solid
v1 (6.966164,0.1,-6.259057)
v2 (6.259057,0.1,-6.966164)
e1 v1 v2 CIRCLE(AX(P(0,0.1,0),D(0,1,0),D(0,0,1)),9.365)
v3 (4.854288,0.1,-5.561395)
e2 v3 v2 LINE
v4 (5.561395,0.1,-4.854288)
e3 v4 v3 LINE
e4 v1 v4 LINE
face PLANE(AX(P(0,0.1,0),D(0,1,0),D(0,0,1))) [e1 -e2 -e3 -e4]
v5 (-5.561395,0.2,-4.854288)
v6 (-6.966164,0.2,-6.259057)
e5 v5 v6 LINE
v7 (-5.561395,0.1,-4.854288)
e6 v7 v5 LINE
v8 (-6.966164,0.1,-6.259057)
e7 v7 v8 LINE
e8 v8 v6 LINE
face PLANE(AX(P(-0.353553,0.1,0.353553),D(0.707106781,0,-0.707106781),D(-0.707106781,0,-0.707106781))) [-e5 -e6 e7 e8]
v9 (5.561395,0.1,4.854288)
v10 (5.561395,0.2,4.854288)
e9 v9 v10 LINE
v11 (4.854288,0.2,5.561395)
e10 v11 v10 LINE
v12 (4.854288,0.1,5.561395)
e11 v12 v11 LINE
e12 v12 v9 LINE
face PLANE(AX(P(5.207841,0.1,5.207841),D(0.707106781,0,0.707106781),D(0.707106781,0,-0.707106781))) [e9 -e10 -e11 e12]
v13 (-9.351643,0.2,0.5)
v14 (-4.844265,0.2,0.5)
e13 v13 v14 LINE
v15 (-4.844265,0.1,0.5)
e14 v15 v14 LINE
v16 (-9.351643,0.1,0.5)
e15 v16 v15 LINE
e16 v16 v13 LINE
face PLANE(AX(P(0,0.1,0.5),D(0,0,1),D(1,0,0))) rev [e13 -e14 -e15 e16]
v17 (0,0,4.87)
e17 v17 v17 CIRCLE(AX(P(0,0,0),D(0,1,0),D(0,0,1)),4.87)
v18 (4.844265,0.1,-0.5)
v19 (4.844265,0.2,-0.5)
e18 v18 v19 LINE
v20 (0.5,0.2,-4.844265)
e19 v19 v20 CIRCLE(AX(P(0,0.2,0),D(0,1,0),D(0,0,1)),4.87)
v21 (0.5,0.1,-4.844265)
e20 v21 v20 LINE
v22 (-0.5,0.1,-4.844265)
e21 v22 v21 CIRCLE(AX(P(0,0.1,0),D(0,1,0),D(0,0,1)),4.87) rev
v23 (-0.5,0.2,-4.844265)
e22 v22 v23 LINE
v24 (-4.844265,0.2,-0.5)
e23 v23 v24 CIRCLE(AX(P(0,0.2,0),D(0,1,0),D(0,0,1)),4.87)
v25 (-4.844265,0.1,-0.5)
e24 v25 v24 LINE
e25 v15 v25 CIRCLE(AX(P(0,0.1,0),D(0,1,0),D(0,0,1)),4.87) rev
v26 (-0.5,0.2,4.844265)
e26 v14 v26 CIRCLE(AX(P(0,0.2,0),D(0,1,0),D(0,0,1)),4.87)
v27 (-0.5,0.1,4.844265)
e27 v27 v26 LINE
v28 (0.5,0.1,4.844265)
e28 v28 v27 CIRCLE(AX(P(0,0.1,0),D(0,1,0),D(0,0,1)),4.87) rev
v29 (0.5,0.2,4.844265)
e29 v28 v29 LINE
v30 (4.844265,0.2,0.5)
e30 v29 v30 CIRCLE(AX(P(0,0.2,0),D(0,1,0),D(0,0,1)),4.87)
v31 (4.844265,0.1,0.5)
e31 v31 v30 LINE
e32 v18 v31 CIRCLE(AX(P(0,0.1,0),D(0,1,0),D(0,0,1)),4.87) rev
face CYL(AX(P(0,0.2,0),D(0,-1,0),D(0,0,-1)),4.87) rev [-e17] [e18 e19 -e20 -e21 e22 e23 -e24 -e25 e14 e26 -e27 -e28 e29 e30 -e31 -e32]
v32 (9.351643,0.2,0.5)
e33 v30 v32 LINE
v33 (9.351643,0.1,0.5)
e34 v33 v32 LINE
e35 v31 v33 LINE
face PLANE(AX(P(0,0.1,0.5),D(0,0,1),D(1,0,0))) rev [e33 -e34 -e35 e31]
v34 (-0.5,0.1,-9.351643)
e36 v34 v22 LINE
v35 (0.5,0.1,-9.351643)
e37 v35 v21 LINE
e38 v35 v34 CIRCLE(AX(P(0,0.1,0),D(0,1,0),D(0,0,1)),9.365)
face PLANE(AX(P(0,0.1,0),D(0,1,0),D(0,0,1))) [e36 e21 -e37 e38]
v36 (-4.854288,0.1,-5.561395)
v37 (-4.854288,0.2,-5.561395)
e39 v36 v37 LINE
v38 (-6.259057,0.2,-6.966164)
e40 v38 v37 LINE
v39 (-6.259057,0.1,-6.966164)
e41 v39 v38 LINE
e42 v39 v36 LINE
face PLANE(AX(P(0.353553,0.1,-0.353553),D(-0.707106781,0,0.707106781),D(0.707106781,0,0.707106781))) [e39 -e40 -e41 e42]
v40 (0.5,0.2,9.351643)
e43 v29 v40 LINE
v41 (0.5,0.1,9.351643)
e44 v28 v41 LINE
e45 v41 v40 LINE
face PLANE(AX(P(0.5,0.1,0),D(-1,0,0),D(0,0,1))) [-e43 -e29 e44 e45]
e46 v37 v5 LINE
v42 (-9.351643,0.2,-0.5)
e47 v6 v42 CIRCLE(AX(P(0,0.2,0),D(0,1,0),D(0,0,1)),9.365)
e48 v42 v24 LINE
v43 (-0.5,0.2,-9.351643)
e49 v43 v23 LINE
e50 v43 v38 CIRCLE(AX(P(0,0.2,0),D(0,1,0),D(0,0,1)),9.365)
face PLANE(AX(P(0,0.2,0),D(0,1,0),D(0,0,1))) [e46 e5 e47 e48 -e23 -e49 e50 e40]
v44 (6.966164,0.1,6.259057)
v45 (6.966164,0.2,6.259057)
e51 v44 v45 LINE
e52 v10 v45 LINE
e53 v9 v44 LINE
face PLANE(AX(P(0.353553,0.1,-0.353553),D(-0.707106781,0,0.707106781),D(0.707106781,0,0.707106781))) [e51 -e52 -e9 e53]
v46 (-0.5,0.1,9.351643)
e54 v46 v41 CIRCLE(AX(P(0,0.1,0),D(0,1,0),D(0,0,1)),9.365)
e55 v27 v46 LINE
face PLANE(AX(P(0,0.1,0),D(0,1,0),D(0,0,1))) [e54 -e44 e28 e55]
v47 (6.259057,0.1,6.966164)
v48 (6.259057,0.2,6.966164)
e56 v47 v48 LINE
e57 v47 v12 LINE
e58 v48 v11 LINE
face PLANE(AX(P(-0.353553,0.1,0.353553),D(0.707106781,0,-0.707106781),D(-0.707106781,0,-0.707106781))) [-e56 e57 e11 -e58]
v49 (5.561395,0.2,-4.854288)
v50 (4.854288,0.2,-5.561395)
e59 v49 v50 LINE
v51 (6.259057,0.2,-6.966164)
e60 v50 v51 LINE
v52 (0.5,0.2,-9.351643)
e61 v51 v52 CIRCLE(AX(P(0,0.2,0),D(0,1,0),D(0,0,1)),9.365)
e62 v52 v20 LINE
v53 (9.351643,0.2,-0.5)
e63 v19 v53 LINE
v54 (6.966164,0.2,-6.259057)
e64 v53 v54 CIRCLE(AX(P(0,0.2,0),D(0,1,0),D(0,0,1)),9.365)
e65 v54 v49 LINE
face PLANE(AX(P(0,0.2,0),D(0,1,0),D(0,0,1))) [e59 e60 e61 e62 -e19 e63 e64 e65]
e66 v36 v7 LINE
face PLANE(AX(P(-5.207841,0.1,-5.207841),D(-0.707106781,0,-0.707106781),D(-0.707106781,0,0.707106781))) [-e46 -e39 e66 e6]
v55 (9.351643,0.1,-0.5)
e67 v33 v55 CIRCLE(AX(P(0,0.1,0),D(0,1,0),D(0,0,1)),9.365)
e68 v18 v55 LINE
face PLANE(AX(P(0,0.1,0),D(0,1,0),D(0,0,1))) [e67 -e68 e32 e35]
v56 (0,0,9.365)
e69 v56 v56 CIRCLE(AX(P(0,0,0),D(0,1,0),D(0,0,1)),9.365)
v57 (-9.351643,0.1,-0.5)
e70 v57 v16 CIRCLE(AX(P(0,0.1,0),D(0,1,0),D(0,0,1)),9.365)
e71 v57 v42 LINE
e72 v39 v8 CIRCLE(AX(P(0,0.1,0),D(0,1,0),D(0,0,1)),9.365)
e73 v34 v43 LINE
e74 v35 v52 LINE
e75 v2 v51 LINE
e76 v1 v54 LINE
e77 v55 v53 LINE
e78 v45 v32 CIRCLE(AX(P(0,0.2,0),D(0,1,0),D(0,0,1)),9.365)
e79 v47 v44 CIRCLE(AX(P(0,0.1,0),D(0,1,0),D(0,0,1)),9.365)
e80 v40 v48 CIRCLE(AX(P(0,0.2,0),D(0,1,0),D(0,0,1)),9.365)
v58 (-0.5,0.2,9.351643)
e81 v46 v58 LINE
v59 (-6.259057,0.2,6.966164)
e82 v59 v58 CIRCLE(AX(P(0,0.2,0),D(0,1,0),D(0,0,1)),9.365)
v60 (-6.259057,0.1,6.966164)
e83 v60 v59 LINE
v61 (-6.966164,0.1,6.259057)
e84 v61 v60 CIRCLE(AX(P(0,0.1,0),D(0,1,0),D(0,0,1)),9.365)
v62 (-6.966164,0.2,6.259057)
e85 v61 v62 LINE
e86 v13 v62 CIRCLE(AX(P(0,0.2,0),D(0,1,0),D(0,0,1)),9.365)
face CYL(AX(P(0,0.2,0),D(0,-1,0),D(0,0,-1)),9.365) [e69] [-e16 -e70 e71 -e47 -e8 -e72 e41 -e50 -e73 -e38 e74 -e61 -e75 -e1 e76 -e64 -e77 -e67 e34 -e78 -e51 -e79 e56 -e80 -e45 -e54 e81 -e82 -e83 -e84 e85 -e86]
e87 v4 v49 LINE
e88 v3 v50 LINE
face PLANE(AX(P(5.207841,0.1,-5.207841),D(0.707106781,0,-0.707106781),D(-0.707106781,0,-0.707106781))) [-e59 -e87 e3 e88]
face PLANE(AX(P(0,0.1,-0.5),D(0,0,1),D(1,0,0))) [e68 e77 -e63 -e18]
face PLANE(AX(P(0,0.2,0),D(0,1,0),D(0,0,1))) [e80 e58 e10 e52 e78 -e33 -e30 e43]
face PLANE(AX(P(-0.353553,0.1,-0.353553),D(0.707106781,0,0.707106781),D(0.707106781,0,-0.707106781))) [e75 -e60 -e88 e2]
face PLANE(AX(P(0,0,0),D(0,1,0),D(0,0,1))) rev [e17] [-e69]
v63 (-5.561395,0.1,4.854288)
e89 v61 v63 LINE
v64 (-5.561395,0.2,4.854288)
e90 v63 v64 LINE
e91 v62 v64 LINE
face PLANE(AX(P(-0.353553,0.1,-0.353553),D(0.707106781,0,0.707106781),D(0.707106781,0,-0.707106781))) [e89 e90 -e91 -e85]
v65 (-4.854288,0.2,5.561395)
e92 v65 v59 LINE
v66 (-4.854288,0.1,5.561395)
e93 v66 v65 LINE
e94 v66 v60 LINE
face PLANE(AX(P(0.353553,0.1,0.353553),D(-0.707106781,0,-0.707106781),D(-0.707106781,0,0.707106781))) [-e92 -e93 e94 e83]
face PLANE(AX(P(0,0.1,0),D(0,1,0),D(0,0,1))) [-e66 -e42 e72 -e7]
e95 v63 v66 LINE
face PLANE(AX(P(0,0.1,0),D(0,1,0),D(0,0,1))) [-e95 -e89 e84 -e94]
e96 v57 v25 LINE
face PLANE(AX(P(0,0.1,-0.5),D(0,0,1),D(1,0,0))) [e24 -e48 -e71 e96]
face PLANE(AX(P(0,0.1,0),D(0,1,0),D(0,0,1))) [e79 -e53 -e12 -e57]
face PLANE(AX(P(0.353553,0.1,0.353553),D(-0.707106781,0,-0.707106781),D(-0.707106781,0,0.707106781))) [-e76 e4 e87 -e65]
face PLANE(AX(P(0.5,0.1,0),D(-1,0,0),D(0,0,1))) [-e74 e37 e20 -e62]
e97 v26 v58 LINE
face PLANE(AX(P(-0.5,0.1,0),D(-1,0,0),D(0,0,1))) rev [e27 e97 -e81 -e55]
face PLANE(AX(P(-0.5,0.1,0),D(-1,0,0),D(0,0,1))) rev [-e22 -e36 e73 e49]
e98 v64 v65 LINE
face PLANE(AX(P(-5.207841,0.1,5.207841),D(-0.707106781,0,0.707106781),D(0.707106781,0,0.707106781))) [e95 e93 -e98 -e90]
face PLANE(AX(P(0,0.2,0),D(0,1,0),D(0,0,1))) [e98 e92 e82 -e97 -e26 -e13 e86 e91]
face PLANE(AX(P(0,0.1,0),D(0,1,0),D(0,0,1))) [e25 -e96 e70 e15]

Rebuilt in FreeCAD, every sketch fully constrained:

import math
import FreeCAD as App
import Part
import Sketcher
Q = App.Units.Quantity

doc = App.newDocument("Part")
params = doc.addObject("Spreadsheet::Sheet", "Params")
for row, (alias, value) in enumerate([
    ("sketch1_diameter", "18.73 mm"),
    ("sketch1_diameter2", "9.74 mm"),
    ("pad1_length", "0.2 mm"),
    ("sketch2_radius", "4.87 mm"),
    ("sketch2_length", "1 mm"),
    ("sketch2_length2", "2 mm"),
    ("pocket1_length", "0.1 mm"),
], start=1):
    params.set(f"A{row}", alias)
    params.set(f"B{row}", "=" + value)
    params.setAlias(f"B{row}", alias)

body = doc.addObject("PartDesign::Body", "Body")

# Sketch on XZ plane
sketch1 = body.newObject("Sketcher::SketchObject", "Sketch")
sketch1.AttachmentSupport = (doc.getObject("XZ_Plane"), [""])
sketch1.MapMode = "FlatFace"
sketch1.addGeometry([
    Part.Circle(App.Vector(0, 0, 0), App.Vector(0, 0, 1), 9.365),
    Part.Circle(App.Vector(0, 0, 0), App.Vector(0, 0, 1), 4.87),
], False)
sketch1.addConstraint([
    Sketcher.Constraint("Coincident", 0, 3, -1, 1),
    Sketcher.Constraint("Coincident", 1, 3, -1, 1),
    Sketcher.Constraint("Diameter", 0, Q("18.73 mm")),
    Sketcher.Constraint("Diameter", 1, Q("9.74 mm")),
])
sketch1.setExpression("Constraints[2]", "Params.sketch1_diameter")
sketch1.setExpression("Constraints[3]", "Params.sketch1_diameter2")
pad1 = body.newObject("PartDesign::Pad", "Pad")
pad1.Profile = sketch1
pad1.setExpression("Length", "Params.pad1_length")
pad1.Reversed = True

# Sketch on XZ plane
sketch2 = body.newObject("Sketcher::SketchObject", "Sketch001")
sketch2.AttachmentSupport = (doc.getObject("XZ_Plane"), [""])
sketch2.MapMode = "FlatFace"
sketch2.AttachmentOffset = App.Placement(App.Vector(0, 0, -0.2), App.Rotation())
sketch2.addGeometry([
    Part.LineSegment(App.Vector(-0.5, -9.351643, 0), App.Vector(-0.5, -4.844265, 0)),  # 0
    Part.ArcOfCircle(Part.Circle(App.Vector(0, 0, 0), App.Vector(0, 0, 1), 4.87), math.radians(-95.892908), math.radians(-84.107092)),  # 1
    Part.LineSegment(App.Vector(0.5, -4.844265, 0), App.Vector(0.5, -9.351643, 0)),  # 2
    Part.ArcOfCircle(Part.Circle(App.Vector(0, 0.000001, 0), App.Vector(0, 0, 1), 9.365001), math.radians(-90), math.radians(-86.939507)),  # 3
    Part.ArcOfCircle(Part.Circle(App.Vector(0, 0.000001, 0), App.Vector(0, 0, 1), 9.365001), math.radians(-93.060493), math.radians(-90)),  # 4
    Part.ArcOfCircle(Part.Circle(App.Vector(0, 0, 0), App.Vector(0, 0, 1), 4.87), math.radians(84.107092), math.radians(95.892908)),  # 5
    Part.LineSegment(App.Vector(-0.5, 4.844265, 0), App.Vector(-0.5, 9.351643, 0)),  # 6
    Part.ArcOfCircle(Part.Circle(App.Vector(0, -0.000001, 0), App.Vector(0, 0, 1), 9.365001), math.radians(90), math.radians(93.060493)),  # 7
    Part.ArcOfCircle(Part.Circle(App.Vector(0, -0.000001, 0), App.Vector(0, 0, 1), 9.365001), math.radians(86.939507), math.radians(90)),  # 8
    Part.LineSegment(App.Vector(0.5, 9.351643, 0), App.Vector(0.5, 4.844265, 0)),  # 9
    Part.LineSegment(App.Vector(-4.844265, -0.5, 0), App.Vector(-9.351643, -0.5, 0)),  # 10
    Part.ArcOfCircle(Part.Circle(App.Vector(0.000001, 0, 0), App.Vector(0, 0, 1), 9.365001), math.radians(-180), math.radians(-176.939507)),  # 11
    Part.ArcOfCircle(Part.Circle(App.Vector(0.000001, 0, 0), App.Vector(0, 0, 1), 9.365001), math.radians(176.939507), math.radians(180)),  # 12
    Part.LineSegment(App.Vector(-9.351643, 0.5, 0), App.Vector(-4.844265, 0.5, 0)),  # 13
    Part.ArcOfCircle(Part.Circle(App.Vector(0, 0, 0), App.Vector(0, 0, 1), 4.87), math.radians(174.107092), math.radians(185.892908)),  # 14
    Part.LineSegment(App.Vector(9.351643, -0.5, 0), App.Vector(4.844265, -0.5, 0)),  # 15
    Part.ArcOfCircle(Part.Circle(App.Vector(0, 0, 0), App.Vector(0, 0, 1), 4.87), math.radians(-5.892908), math.radians(0)),  # 16
    Part.ArcOfCircle(Part.Circle(App.Vector(0, 0, 0), App.Vector(0, 0, 1), 4.87), math.radians(0), math.radians(5.892908)),  # 17
    Part.LineSegment(App.Vector(4.844265, 0.5, 0), App.Vector(9.351643, 0.5, 0)),  # 18
    Part.ArcOfCircle(Part.Circle(App.Vector(-0.000001, 0, 0), App.Vector(0, 0, 1), 9.365001), math.radians(0), math.radians(3.060493)),  # 19
    Part.ArcOfCircle(Part.Circle(App.Vector(-0.000001, 0, 0), App.Vector(0, 0, 1), 9.365001), math.radians(-3.060493), math.radians(0)),  # 20
    Part.ArcOfCircle(Part.Circle(App.Vector(0, 0, 0), App.Vector(0, 0, 1), 9.365), math.radians(-48.060493), math.radians(-45)),  # 21
    Part.LineSegment(App.Vector(6.259057, -6.966164, 0), App.Vector(4.854288, -5.561395, 0)),  # 22
    Part.LineSegment(App.Vector(4.854288, -5.561395, 0), App.Vector(5.561395, -4.854288, 0)),  # 23
    Part.LineSegment(App.Vector(5.561395, -4.854288, 0), App.Vector(6.966164, -6.259057, 0)),  # 24
    Part.ArcOfCircle(Part.Circle(App.Vector(0, 0, 0), App.Vector(0, 0, 1), 9.365), math.radians(-45), math.radians(-41.939507)),  # 25
    Part.LineSegment(App.Vector(4.854288, 5.561395, 0), App.Vector(6.259057, 6.966164, 0)),  # 26
    Part.ArcOfCircle(Part.Circle(App.Vector(0, 0, 0), App.Vector(0, 0, 1), 9.365), math.radians(45), math.radians(48.060493)),  # 27
    Part.ArcOfCircle(Part.Circle(App.Vector(0, 0, 0), App.Vector(0, 0, 1), 9.365), math.radians(41.939507), math.radians(45)),  # 28
    Part.LineSegment(App.Vector(6.966164, 6.259057, 0), App.Vector(5.561395, 4.854288, 0)),  # 29
    Part.LineSegment(App.Vector(5.561395, 4.854288, 0), App.Vector(4.854288, 5.561395, 0)),  # 30
    Part.LineSegment(App.Vector(-5.561395, 4.854288, 0), App.Vector(-6.966164, 6.259057, 0)),  # 31
    Part.ArcOfCircle(Part.Circle(App.Vector(0, 0, 0), App.Vector(0, 0, 1), 9.365), math.radians(135), math.radians(138.060493)),  # 32
    Part.ArcOfCircle(Part.Circle(App.Vector(0, 0, 0), App.Vector(0, 0, 1), 9.365), math.radians(131.939507), math.radians(135)),  # 33
    Part.LineSegment(App.Vector(-6.259057, 6.966164, 0), App.Vector(-4.854288, 5.561395, 0)),  # 34
    Part.LineSegment(App.Vector(-4.854288, 5.561395, 0), App.Vector(-5.561395, 4.854288, 0)),  # 35
    Part.LineSegment(App.Vector(-5.561395, -4.854288, 0), App.Vector(-4.854288, -5.561395, 0)),  # 36
    Part.LineSegment(App.Vector(-4.854288, -5.561395, 0), App.Vector(-6.268502, -6.975608, 0)),  # 37
    Part.LineSegment(App.Vector(-6.268502, -6.975608, 0), App.Vector(-6.975608, -6.268502, 0)),  # 38
    Part.LineSegment(App.Vector(-6.975608, -6.268502, 0), App.Vector(-5.561395, -4.854288, 0)),  # 39
], False)
sketch2.addConstraint([
    Sketcher.Constraint("Coincident", 0, 2, 1, 1),
    Sketcher.Constraint("Coincident", 1, 2, 2, 1),
    Sketcher.Constraint("Coincident", 2, 2, 3, 2),
    Sketcher.Constraint("Tangent", 3, 1, 4, 2),
    Sketcher.Constraint("Coincident", 4, 1, 0, 1),
    Sketcher.Constraint("Coincident", 5, 2, 6, 1),
    Sketcher.Constraint("Coincident", 6, 2, 7, 2),
    Sketcher.Constraint("Tangent", 7, 1, 8, 2),
    Sketcher.Constraint("Coincident", 8, 1, 9, 1),
    Sketcher.Constraint("Coincident", 9, 2, 5, 1),
    Sketcher.Constraint("Coincident", 10, 2, 11, 2),
    Sketcher.Constraint("Tangent", 11, 1, 12, 2),
    Sketcher.Constraint("Coincident", 12, 1, 13, 1),
    Sketcher.Constraint("Coincident", 13, 2, 14, 1),
    Sketcher.Constraint("Coincident", 14, 2, 10, 1),
    Sketcher.Constraint("Coincident", 15, 2, 16, 1),
    Sketcher.Constraint("Tangent", 16, 2, 17, 1),
    Sketcher.Constraint("Coincident", 17, 2, 18, 1),
    Sketcher.Constraint("Coincident", 18, 2, 19, 2),
    Sketcher.Constraint("Tangent", 19, 1, 20, 2),
    Sketcher.Constraint("Coincident", 20, 1, 15, 1),
    Sketcher.Constraint("Coincident", 21, 1, 22, 1),
    Sketcher.Constraint("Coincident", 22, 2, 23, 1),
    Sketcher.Constraint("Coincident", 23, 2, 24, 1),
    Sketcher.Constraint("Coincident", 24, 2, 25, 2),
    Sketcher.Constraint("Tangent", 25, 1, 21, 2),
    Sketcher.Constraint("Coincident", 26, 2, 27, 2),
    Sketcher.Constraint("Tangent", 27, 1, 28, 2),
    Sketcher.Constraint("Coincident", 28, 1, 29, 1),
    Sketcher.Constraint("Coincident", 29, 2, 30, 1),
    Sketcher.Constraint("Coincident", 30, 2, 26, 1),
    Sketcher.Constraint("Coincident", 31, 2, 32, 2),
    Sketcher.Constraint("Tangent", 32, 1, 33, 2),
    Sketcher.Constraint("Coincident", 33, 1, 34, 1),
    Sketcher.Constraint("Coincident", 34, 2, 35, 1),
    Sketcher.Constraint("Coincident", 35, 2, 31, 1),
    Sketcher.Constraint("Coincident", 36, 2, 37, 1),
    Sketcher.Constraint("Coincident", 37, 2, 38, 1),
    Sketcher.Constraint("Coincident", 38, 2, 39, 1),
    Sketcher.Constraint("Coincident", 39, 2, 36, 1),
    Sketcher.Constraint("Vertical", 0),
    Sketcher.Constraint("Vertical", 2),
    Sketcher.Constraint("Vertical", 6),
    Sketcher.Constraint("Vertical", 9),
    Sketcher.Constraint("Horizontal", 10),
    Sketcher.Constraint("Horizontal", 13),
    Sketcher.Constraint("Horizontal", 15),
    Sketcher.Constraint("Horizontal", 18),
    Sketcher.Constraint("Coincident", 1, 3, -1, 1),
    Sketcher.Constraint("Coincident", 3, 3, -1, 1),
    Sketcher.Constraint("Coincident", 5, 3, -1, 1),
    Sketcher.Constraint("Coincident", 7, 3, -1, 1),
    Sketcher.Constraint("Coincident", 11, 3, -1, 1),
    Sketcher.Constraint("Coincident", 14, 3, -1, 1),
    Sketcher.Constraint("Coincident", 16, 3, -1, 1),
    Sketcher.Constraint("Coincident", 19, 3, -1, 1),
    Sketcher.Constraint("Coincident", 21, 3, -1, 1),
    Sketcher.Constraint("Coincident", 27, 3, -1, 1),
    Sketcher.Constraint("Coincident", 32, 3, -1, 1),
    Sketcher.Constraint("Equal", 3, 4),
    Sketcher.Constraint("Equal", 1, 5),
    Sketcher.Constraint("Equal", 4, 7),
    Sketcher.Constraint("Equal", 7, 8),
    Sketcher.Constraint("Equal", 8, 11),
    Sketcher.Constraint("Equal", 11, 12),
    Sketcher.Constraint("Equal", 5, 14),
    Sketcher.Constraint("Equal", 14, 16),
    Sketcher.Constraint("Equal", 16, 17),
    Sketcher.Constraint("Equal", 12, 19),
    Sketcher.Constraint("Equal", 19, 20),
    Sketcher.Constraint("Equal", 20, 21),
    Sketcher.Constraint("Equal", 21, 25),
    Sketcher.Constraint("Equal", 25, 27),
    Sketcher.Constraint("Equal", 27, 28),
    Sketcher.Constraint("Equal", 28, 32),
    Sketcher.Constraint("Equal", 32, 33),
    Sketcher.Constraint("Symmetric", 22, 2, 34, 2, -1, 1),
    Sketcher.Constraint("Symmetric", 23, 2, 35, 2, -1, 1),
    Sketcher.Constraint("Symmetric", 30, 2, 36, 2, -1, 1),
    Sketcher.Constraint("Symmetric", 29, 2, 39, 2, -1, 1),
    Sketcher.Constraint("Symmetric", 30, 2, 34, 2, -2),
    Sketcher.Constraint("Symmetric", 29, 2, 35, 2, -2),
    Sketcher.Constraint("PointOnObject", 3, 1, -2),
    Sketcher.Constraint("PointOnObject", 7, 1, -2),
    Sketcher.Constraint("PointOnObject", 11, 1, -1),
    Sketcher.Constraint("PointOnObject", 16, 2, -1),
    Sketcher.Constraint("PointOnObject", 19, 1, -1),
    Sketcher.Constraint("Perpendicular", 22, 23),
    Sketcher.Constraint("Perpendicular", 23, 24),
    Sketcher.Constraint("Perpendicular", 24, 26),
    Sketcher.Constraint("Parallel", 26, 29),
    Sketcher.Constraint("Perpendicular", 29, 30),
    Sketcher.Constraint("Parallel", 30, 31),
    Sketcher.Constraint("Parallel", 31, 34),
    Sketcher.Constraint("Perpendicular", 36, 37),
    Sketcher.Constraint("Perpendicular", 37, 38),
    Sketcher.Constraint("Perpendicular", 38, 39),
    Sketcher.Constraint("Horizontal", 0, 2, 1, 2),
    Sketcher.Constraint("Horizontal", 6, 2, 8, 1),
    Sketcher.Constraint("Horizontal", 14, 2, 15, 2),
    Sketcher.Constraint("Horizontal", 13, 2, 17, 2),
    Sketcher.Constraint("Horizontal", 27, 1, 32, 1),
    Sketcher.Constraint("Vertical", 4, 1, 5, 2),
    Sketcher.Constraint("Vertical", 10, 2, 12, 1),
    Sketcher.Constraint("Vertical", 25, 1, 27, 1),
    Sketcher.Constraint("Equal", 18, 0),
    Sketcher.Constraint("Equal", 22, 24),
    Sketcher.Constraint("Radius", 1, Q("4.87 mm")),
    Sketcher.Constraint("Distance", 23, Q("1 mm")),
    Sketcher.Constraint("Distance", 37, Q("2 mm")),
    Sketcher.Constraint("Radius", 3, Q("9.365001 mm")),
    Sketcher.Constraint("DistanceX", 0, 2, 1, 2, Q("1 mm")),
    Sketcher.Constraint("DistanceX", 21, 1, 25, 1, Q("0.362998 mm")),
    Sketcher.Constraint("DistanceX", 37, 2, -1, 1, Q("6.268502 mm")),
])
sketch2.setExpression("Constraints[107]", "Params.sketch2_radius")
sketch2.setExpression("Constraints[108]", "Params.sketch2_length")
sketch2.setExpression("Constraints[109]", "Params.sketch2_length2")
pocket1 = body.newObject("PartDesign::Pocket", "Pocket")
pocket1.Profile = sketch2
pocket1.setExpression("Length", "Params.pocket1_length")
pocket1.Reversed = True

doc.recompute()
